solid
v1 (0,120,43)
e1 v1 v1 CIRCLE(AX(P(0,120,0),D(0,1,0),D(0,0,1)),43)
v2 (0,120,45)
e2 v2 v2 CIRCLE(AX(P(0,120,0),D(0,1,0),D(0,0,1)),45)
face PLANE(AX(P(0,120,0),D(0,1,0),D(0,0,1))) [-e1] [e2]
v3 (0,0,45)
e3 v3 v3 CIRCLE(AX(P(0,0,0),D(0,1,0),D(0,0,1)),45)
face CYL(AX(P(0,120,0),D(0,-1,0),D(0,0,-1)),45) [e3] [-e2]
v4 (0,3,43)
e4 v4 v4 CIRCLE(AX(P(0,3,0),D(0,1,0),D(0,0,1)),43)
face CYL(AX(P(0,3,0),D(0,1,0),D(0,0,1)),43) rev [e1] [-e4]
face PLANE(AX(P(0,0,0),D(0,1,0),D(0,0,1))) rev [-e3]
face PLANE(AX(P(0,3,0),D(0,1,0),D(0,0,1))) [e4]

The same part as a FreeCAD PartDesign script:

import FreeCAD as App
import Part
import Sketcher

doc = App.newDocument("Part")
body = doc.addObject("PartDesign::Body", "Body")

# Sketch on XZ plane
sketch1 = body.newObject("Sketcher::SketchObject", "Sketch")
sketch1.AttachmentSupport = (doc.getObject("XZ_Plane"), [""])
sketch1.MapMode = "FlatFace"
sketch1.addGeometry(Part.Circle(App.Vector(0, 0, 0), App.Vector(0, 0, 1), 45), False)
sketch1.addConstraint([
    Sketcher.Constraint("Coincident", 0, 3, -1, 1),
    Sketcher.Constraint("Diameter", 0, 90.0),
])
pad1 = body.newObject("PartDesign::Pad", "Pad")
pad1.Profile = sketch1
pad1.Length = 120
pad1.Reversed = True

# Sketch on XZ plane
sketch2 = body.newObject("Sketcher::SketchObject", "Sketch001")
sketch2.AttachmentSupport = (doc.getObject("XZ_Plane"), [""])
sketch2.MapMode = "FlatFace"
sketch2.AttachmentOffset = App.Placement(App.Vector(0, 0, -120), App.Rotation())
sketch2.addGeometry(Part.Circle(App.Vector(0, 0, 0), App.Vector(0, 0, 1), 43), False)
sketch2.addConstraint([
    Sketcher.Constraint("Coincident", 0, 3, -1, 1),
    Sketcher.Constraint("Diameter", 0, 86.0),
])
pocket1 = body.newObject("PartDesign::Pocket", "Pocket")
pocket1.Profile = sketch2
pocket1.Length = 117
pocket1.Reversed = True

doc.recompute()
